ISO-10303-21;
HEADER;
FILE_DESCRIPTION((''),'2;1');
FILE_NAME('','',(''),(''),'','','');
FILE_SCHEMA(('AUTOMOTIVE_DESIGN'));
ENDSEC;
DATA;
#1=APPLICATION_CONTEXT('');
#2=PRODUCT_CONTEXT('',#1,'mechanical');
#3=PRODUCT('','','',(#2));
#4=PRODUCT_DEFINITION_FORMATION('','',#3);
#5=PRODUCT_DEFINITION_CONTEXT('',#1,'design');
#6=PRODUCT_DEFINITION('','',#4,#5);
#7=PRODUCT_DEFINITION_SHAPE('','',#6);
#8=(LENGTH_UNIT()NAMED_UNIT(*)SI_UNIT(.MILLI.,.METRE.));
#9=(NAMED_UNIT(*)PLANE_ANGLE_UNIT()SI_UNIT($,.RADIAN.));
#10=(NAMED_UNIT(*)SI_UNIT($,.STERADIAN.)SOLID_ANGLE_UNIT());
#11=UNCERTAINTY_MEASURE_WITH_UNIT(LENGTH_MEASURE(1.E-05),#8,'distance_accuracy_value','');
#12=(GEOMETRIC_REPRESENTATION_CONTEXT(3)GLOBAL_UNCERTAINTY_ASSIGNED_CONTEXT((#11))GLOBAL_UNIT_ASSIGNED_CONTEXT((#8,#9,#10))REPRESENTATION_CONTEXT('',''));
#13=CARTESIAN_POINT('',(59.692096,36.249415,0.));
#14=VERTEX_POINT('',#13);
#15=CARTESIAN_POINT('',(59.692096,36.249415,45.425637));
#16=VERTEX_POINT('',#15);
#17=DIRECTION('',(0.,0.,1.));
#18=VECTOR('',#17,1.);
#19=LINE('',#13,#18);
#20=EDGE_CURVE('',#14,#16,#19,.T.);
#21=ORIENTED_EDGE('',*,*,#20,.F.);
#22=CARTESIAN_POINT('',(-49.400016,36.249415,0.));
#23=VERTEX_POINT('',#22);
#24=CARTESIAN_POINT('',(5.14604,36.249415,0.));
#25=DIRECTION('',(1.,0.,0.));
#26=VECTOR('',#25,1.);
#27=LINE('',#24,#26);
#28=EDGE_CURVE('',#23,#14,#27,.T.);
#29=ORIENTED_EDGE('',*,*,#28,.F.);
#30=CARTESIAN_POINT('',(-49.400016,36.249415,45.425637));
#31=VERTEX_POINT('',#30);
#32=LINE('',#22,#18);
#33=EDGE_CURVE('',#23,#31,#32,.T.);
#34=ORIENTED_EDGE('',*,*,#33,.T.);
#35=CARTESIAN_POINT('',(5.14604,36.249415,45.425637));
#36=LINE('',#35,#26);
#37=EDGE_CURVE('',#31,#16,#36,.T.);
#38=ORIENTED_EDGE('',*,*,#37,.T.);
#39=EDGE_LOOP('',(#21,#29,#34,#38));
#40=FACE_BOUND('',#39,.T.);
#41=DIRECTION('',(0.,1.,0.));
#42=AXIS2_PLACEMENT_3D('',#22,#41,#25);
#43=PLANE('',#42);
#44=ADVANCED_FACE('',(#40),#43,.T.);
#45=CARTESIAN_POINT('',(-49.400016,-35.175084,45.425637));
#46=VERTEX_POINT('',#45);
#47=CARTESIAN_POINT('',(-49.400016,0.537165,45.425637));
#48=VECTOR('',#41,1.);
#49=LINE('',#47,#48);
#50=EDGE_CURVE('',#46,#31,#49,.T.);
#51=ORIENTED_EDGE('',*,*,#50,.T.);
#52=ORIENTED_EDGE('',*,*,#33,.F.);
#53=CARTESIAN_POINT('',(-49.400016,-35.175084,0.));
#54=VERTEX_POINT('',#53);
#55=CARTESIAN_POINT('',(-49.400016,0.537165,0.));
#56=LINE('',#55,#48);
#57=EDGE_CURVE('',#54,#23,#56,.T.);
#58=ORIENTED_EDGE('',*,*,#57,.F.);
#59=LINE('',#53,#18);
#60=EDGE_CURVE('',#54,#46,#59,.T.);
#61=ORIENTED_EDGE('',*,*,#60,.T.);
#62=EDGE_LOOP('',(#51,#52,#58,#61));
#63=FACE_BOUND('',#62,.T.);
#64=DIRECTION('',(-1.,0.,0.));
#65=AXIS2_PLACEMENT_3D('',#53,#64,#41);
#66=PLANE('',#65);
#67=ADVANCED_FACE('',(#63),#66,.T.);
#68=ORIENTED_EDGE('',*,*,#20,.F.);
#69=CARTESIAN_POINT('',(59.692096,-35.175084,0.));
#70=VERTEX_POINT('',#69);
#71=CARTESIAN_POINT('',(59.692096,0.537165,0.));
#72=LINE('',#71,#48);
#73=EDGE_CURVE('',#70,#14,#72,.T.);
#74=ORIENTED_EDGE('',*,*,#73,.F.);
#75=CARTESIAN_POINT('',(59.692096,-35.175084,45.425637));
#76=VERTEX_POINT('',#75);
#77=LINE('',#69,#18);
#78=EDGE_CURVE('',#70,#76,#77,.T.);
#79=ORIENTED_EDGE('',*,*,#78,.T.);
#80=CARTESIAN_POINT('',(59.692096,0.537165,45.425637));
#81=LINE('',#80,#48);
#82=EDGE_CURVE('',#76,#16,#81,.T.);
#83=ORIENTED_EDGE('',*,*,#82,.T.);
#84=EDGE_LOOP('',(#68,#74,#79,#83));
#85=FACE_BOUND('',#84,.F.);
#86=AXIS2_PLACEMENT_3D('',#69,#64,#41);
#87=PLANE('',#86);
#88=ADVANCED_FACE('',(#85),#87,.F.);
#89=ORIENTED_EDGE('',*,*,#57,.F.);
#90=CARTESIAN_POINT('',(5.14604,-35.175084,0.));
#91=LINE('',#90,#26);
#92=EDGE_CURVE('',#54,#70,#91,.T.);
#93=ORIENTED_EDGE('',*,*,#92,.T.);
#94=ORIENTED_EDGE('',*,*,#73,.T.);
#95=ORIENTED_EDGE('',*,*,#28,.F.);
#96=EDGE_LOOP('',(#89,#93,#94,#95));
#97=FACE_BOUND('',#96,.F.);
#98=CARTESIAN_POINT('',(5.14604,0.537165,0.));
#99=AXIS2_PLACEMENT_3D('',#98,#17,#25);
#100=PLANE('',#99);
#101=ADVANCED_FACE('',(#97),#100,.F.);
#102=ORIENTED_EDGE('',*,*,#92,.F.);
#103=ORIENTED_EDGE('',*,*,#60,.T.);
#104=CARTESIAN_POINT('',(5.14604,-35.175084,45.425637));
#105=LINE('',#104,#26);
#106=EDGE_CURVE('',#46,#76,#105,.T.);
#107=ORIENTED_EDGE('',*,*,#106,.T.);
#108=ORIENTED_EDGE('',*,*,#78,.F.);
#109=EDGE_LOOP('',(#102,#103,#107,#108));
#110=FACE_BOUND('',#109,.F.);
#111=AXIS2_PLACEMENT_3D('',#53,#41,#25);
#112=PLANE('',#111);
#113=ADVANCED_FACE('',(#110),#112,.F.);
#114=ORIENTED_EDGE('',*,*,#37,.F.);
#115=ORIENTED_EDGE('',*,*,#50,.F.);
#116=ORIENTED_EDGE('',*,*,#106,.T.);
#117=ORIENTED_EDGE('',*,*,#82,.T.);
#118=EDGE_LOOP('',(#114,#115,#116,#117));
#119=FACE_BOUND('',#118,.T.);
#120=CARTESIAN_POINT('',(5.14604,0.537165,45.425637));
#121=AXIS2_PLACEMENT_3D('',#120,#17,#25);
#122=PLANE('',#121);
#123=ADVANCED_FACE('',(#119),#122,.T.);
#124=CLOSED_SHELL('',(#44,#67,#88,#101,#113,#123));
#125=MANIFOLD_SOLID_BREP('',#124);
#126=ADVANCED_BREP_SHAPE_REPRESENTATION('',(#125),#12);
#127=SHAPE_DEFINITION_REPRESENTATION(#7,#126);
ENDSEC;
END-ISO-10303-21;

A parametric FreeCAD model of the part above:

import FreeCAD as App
import Part
import Sketcher
Q = App.Units.Quantity


def add_polygon(sketch, points):
    """Adds a closed chain of lines whose ends are joined by coincident constraints."""
    first, n = sketch.GeometryCount, len(points)
    for a, b in zip(points, points[1:] + points[:1]):
        sketch.addGeometry(Part.LineSegment(App.Vector(*a, 0), App.Vector(*b, 0)), False)
    for i in range(n):
        sketch.addConstraint(Sketcher.Constraint("Coincident", first + i, 2, first + (i + 1) % n, 1))

doc = App.newDocument("Part")
body = doc.addObject("PartDesign::Body", "Body")

# Sketch on XY plane
sketch1 = body.newObject("Sketcher::SketchObject", "Sketch")
sketch1.AttachmentSupport = (doc.getObject("XY_Plane"), [""])
sketch1.MapMode = "FlatFace"
add_polygon(sketch1, [(-49.400016, 36.249415), (-49.400016, -35.175084), (59.692096, -35.175084), (59.692096, 36.249415)])  # lines 0-3
sketch1.addConstraint(Sketcher.Constraint("Vertical", 0))
sketch1.addConstraint(Sketcher.Constraint("Horizontal", 1))
sketch1.addConstraint(Sketcher.Constraint("Vertical", 2))
sketch1.addConstraint(Sketcher.Constraint("Horizontal", 3))
sketch1.addConstraint(Sketcher.Constraint("DistanceY", 0, 2, 0, 1, Q("71.424499 mm")))
sketch1.addConstraint(Sketcher.Constraint("DistanceX", 1, 1, 1, 2, Q("109.092113 mm")))
sketch1.addConstraint(Sketcher.Constraint("DistanceX", 0, 2, -1, 1, Q("49.400016 mm")))
sketch1.addConstraint(Sketcher.Constraint("DistanceY", 0, 2, -1, 1, Q("35.175084 mm")))
pad1 = body.newObject("PartDesign::Pad", "Pad")
pad1.Profile = sketch1
pad1.Length = 45.425637

doc.recompute()
